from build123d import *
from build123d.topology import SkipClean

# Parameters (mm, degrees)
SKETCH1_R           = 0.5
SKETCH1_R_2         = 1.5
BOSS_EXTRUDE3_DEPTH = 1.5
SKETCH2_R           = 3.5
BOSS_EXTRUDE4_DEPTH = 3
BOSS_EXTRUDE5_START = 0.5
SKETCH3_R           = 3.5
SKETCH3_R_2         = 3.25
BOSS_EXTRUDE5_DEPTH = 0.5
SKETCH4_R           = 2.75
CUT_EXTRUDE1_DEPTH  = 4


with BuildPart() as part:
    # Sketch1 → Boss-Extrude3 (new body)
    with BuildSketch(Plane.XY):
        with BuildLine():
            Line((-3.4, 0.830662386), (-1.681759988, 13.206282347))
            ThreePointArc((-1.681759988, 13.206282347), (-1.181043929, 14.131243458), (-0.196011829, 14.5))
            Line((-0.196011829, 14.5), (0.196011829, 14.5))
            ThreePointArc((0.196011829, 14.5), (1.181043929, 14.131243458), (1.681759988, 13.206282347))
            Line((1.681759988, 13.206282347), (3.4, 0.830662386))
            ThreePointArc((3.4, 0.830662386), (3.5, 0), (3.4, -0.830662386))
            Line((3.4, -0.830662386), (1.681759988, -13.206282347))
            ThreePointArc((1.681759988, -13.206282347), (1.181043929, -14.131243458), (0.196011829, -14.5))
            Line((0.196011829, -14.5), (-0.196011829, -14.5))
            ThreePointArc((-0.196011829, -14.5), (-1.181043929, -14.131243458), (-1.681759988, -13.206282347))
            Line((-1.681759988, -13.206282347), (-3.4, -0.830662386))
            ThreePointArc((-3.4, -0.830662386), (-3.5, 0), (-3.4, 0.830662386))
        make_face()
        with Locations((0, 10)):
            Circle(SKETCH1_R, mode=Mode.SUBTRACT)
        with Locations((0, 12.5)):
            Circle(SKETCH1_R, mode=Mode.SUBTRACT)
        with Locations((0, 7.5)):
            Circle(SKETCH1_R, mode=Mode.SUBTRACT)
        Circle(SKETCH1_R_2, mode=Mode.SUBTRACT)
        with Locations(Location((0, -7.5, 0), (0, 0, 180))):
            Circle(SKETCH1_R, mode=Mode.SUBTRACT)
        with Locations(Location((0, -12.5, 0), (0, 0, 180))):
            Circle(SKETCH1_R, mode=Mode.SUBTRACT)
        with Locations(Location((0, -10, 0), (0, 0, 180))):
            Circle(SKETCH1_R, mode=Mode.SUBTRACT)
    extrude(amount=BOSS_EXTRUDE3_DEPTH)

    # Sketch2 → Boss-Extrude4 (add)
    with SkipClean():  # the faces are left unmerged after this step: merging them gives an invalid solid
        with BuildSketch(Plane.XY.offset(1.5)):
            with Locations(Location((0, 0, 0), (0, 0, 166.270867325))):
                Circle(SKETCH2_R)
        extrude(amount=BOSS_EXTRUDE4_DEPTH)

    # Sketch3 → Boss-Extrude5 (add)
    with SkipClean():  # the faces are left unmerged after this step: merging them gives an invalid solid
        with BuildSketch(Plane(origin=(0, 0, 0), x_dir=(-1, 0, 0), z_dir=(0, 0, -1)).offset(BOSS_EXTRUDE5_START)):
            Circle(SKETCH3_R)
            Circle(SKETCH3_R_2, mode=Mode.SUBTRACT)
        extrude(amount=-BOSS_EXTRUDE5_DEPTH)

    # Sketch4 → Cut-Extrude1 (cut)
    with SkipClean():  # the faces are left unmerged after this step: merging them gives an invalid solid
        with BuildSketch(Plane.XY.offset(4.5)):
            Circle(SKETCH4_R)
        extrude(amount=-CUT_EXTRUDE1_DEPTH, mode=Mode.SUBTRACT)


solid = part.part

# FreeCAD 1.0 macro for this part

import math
import FreeCAD as App
import Part
import Sketcher
Q = App.Units.Quantity

doc = App.newDocument("Part")
params = doc.addObject("Spreadsheet::Sheet", "Params")
for row, (alias, value) in enumerate([
    ("sketch1_diameter", "1 mm"),
    ("sketch1_diameter2", "3 mm"),
    ("sketch1_radius", "3.5 mm"),
    ("pad1_length", "1.5 mm"),
    ("sketch2_diameter", "7 mm"),
    ("pad2_length", "3 mm"),
    ("sketch3_diameter", "7 mm"),
    ("sketch3_diameter2", "6.5 mm"),
    ("pad3_length", "0.5 mm"),
    ("sketch4_diameter", "5.5 mm"),
    ("pocket1_length", "4 mm"),
], start=1):
    params.set(f"A{row}", alias)
    params.set(f"B{row}", "=" + value)
    params.setAlias(f"B{row}", alias)

body = doc.addObject("PartDesign::Body", "Body")

sketch1 = doc.addObject("Sketcher::SketchObject", "Sketch")
body.addObject(sketch1)
sketch1.AttachmentSupport = (doc.XY_Plane, [""])
sketch1.MapMode = "FlatFace"
sketch1.addGeometry([
    Part.LineSegment(App.Vector(-1.68, 13.21, 0), App.Vector(-3.4, 0.83, 0)),
    Part.ArcOfCircle(Part.Circle(App.Vector(0, 0, 0), App.Vector(0, 0, 1), 3.5), math.radians(166), math.radians(194)),
    Part.LineSegment(App.Vector(-3.4, -0.83, 0), App.Vector(-1.68, -13.21, 0)),
    Part.ArcOfCircle(Part.Circle(App.Vector(-0.2, -13, 0), App.Vector(0, 0, 1), 1.5), math.radians(-172), math.radians(-90)),
    Part.LineSegment(App.Vector(-0.2, -14.5, 0), App.Vector(0.2, -14.5, 0)),
    Part.ArcOfCircle(Part.Circle(App.Vector(0.2, -13, 0), App.Vector(0, 0, 1), 1.5), math.radians(-90), math.radians(-8)),
    Part.LineSegment(App.Vector(1.68, -13.21, 0), App.Vector(3.4, -0.83, 0)),
    Part.ArcOfCircle(Part.Circle(App.Vector(0, 0, 0), App.Vector(0, 0, 1), 3.5), math.radians(-14), math.radians(14)),
    Part.LineSegment(App.Vector(3.4, 0.83, 0), App.Vector(1.68, 13.21, 0)),
    Part.ArcOfCircle(Part.Circle(App.Vector(0.2, 13, 0), App.Vector(0, 0, 1), 1.5), math.radians(8), math.radians(90)),
    Part.LineSegment(App.Vector(0.2, 14.5, 0), App.Vector(-0.2, 14.5, 0)),
    Part.ArcOfCircle(Part.Circle(App.Vector(-0.2, 13, 0), App.Vector(0, 0, 1), 1.5), math.radians(90), math.radians(172)),
    Part.Circle(App.Vector(0, -12.5, 0), App.Vector(0, 0, 1), 0.5),
    Part.Circle(App.Vector(0, -10, 0), App.Vector(0, 0, 1), 0.5),
    Part.Circle(App.Vector(0, -7.5, 0), App.Vector(0, 0, 1), 0.5),
    Part.Circle(App.Vector(0, 0, 0), App.Vector(0, 0, 1), 1.5),
    Part.Circle(App.Vector(0, 7.5, 0), App.Vector(0, 0, 1), 0.5),
    Part.Circle(App.Vector(0, 10, 0), App.Vector(0, 0, 1), 0.5),
    Part.Circle(App.Vector(0, 12.5, 0), App.Vector(0, 0, 1), 0.5),
], False)
sketch1.addConstraint([
    Sketcher.Constraint("Coincident", 0, 2, 1, 1),
    Sketcher.Constraint("Coincident", 1, 2, 2, 1),
    Sketcher.Constraint("Tangent", 2, 2, 3, 1),
    Sketcher.Constraint("Tangent", 3, 2, 4, 1),
    Sketcher.Constraint("Tangent", 4, 2, 5, 1),
    Sketcher.Constraint("Tangent", 5, 2, 6, 1),
    Sketcher.Constraint("Coincident", 6, 2, 7, 1),
    Sketcher.Constraint("Coincident", 7, 2, 8, 1),
    Sketcher.Constraint("Tangent", 8, 2, 9, 1),
    Sketcher.Constraint("Tangent", 9, 2, 10, 1),
    Sketcher.Constraint("Tangent", 10, 2, 11, 1),
    Sketcher.Constraint("Tangent", 11, 2, 0, 1),
    Sketcher.Constraint("Horizontal", 4),
    Sketcher.Constraint("Horizontal", 10),
    Sketcher.Constraint("Coincident", 1, 3, -1, 1),
    Sketcher.Constraint("Coincident", 7, 3, -1, 1),
    Sketcher.Constraint("Coincident", 15, 3, -1, 1),
    Sketcher.Constraint("Equal", 3, 5),
    Sketcher.Constraint("Equal", 1, 7),
    Sketcher.Constraint("Equal", 5, 9),
    Sketcher.Constraint("Equal", 9, 11),
    Sketcher.Constraint("Equal", 12, 13),
    Sketcher.Constraint("Equal", 13, 14),
    Sketcher.Constraint("Equal", 11, 15),
    Sketcher.Constraint("Equal", 14, 16),
    Sketcher.Constraint("Equal", 16, 17),
    Sketcher.Constraint("Equal", 17, 18),
    Sketcher.Constraint("Symmetric", 3, 3, 9, 3, -1, 1),
    Sketcher.Constraint("Symmetric", 14, 3, 16, 3, -1, 1),
    Sketcher.Constraint("Symmetric", 13, 3, 17, 3, -1, 1),
    Sketcher.Constraint("Symmetric", 12, 3, 18, 3, -1, 1),
    Sketcher.Constraint("Symmetric", 5, 2, 11, 2, -1, 1),
    Sketcher.Constraint("Symmetric", 2, 2, 5, 2, -2),
    Sketcher.Constraint("PointOnObject", 12, 3, -2),
    Sketcher.Constraint("PointOnObject", 13, 3, -2),
    Sketcher.Constraint("PointOnObject", 14, 3, -2),
    Sketcher.Constraint("Parallel", 2, 8),
    Sketcher.Constraint("Diameter", 12, Q("1 mm")),
    Sketcher.Constraint("Diameter", 15, Q("3 mm")),
    Sketcher.Constraint("Radius", 1, Q("3.5 mm")),
    Sketcher.Constraint("DistanceY", 3, 3, -1, 1, Q("13 mm")),
    Sketcher.Constraint("DistanceY", 13, 3, -1, 1, Q("10 mm")),
    Sketcher.Constraint("DistanceY", 12, 3, 14, 3, Q("5 mm")),
    Sketcher.Constraint("DistanceY", 3, 2, 12, 3, Q("2 mm")),
    Sketcher.Constraint("DistanceX", 0, 2, -1, 1, Q("3.4 mm")),
    Sketcher.Constraint("Distance", 0, Q("12.494331 mm")),
])
sketch1.setExpression("Constraints[37]", "Params.sketch1_diameter")
sketch1.setExpression("Constraints[38]", "Params.sketch1_diameter2")
sketch1.setExpression("Constraints[39]", "Params.sketch1_radius")
pad1 = doc.addObject("PartDesign::Pad", "Pad")
body.addObject(pad1)
pad1.Profile = sketch1
pad1.setExpression("Length", "Params.pad1_length")

sketch2 = doc.addObject("Sketcher::SketchObject", "Sketch001")
body.addObject(sketch2)
sketch2.AttachmentSupport = (doc.XY_Plane, [""])
sketch2.MapMode = "FlatFace"
sketch2.AttachmentOffset = App.Placement(App.Vector(0, 0, 1.5), App.Rotation())
sketch2.addGeometry(Part.Circle(App.Vector(0, 0, 0), App.Vector(0, 0, 1), 3.5), False)
sketch2.addConstraint([
    Sketcher.Constraint("Coincident", 0, 3, -1, 1),
    Sketcher.Constraint("Diameter", 0, Q("7 mm")),
])
sketch2.setExpression("Constraints[1]", "Params.sketch2_diameter")
pad2 = doc.addObject("PartDesign::Pad", "Pad001")
body.addObject(pad2)
pad2.Profile = sketch2
pad2.setExpression("Length", "Params.pad2_length")

sketch3 = doc.addObject("Sketcher::SketchObject", "Sketch002")
body.addObject(sketch3)
sketch3.AttachmentSupport = (doc.XY_Plane, [""])
sketch3.MapMode = "FlatFace"
sketch3.AttachmentOffset = App.Placement(App.Vector(0, 0, -0.5), App.Rotation())
sketch3.addGeometry([
    Part.Circle(App.Vector(0, 0, 0), App.Vector(0, 0, 1), 3.5),
    Part.Circle(App.Vector(0, 0, 0), App.Vector(0, 0, 1), 3.2),
], False)
sketch3.addConstraint([
    Sketcher.Constraint("Coincident", 0, 3, -1, 1),
    Sketcher.Constraint("Coincident", 1, 3, -1, 1),
    Sketcher.Constraint("Diameter", 0, Q("7 mm")),
    Sketcher.Constraint("Diameter", 1, Q("6.5 mm")),
])
sketch3.setExpression("Constraints[2]", "Params.sketch3_diameter")
sketch3.setExpression("Constraints[3]", "Params.sketch3_diameter2")
pad3 = doc.addObject("PartDesign::Pad", "Pad002")
body.addObject(pad3)
pad3.Profile = sketch3
pad3.setExpression("Length", "Params.pad3_length")

sketch4 = doc.addObject("Sketcher::SketchObject", "Sketch003")
body.addObject(sketch4)
sketch4.AttachmentSupport = (doc.XY_Plane, [""])
sketch4.MapMode = "FlatFace"
sketch4.AttachmentOffset = App.Placement(App.Vector(0, 0, 4.5), App.Rotation())
sketch4.addGeometry(Part.Circle(App.Vector(0, 0, 0), App.Vector(0, 0, 1), 2.8), False)
sketch4.addConstraint([
    Sketcher.Constraint("Coincident", 0, 3, -1, 1),
    Sketcher.Constraint("Diameter", 0, Q("5.5 mm")),
])
sketch4.setExpression("Constraints[1]", "Params.sketch4_diameter")
pocket1 = doc.addObject("PartDesign::Pocket", "Pocket")
body.addObject(pocket1)
pocket1.Profile = sketch4
pocket1.setExpression("Length", "Params.pocket1_length")

doc.recompute()
